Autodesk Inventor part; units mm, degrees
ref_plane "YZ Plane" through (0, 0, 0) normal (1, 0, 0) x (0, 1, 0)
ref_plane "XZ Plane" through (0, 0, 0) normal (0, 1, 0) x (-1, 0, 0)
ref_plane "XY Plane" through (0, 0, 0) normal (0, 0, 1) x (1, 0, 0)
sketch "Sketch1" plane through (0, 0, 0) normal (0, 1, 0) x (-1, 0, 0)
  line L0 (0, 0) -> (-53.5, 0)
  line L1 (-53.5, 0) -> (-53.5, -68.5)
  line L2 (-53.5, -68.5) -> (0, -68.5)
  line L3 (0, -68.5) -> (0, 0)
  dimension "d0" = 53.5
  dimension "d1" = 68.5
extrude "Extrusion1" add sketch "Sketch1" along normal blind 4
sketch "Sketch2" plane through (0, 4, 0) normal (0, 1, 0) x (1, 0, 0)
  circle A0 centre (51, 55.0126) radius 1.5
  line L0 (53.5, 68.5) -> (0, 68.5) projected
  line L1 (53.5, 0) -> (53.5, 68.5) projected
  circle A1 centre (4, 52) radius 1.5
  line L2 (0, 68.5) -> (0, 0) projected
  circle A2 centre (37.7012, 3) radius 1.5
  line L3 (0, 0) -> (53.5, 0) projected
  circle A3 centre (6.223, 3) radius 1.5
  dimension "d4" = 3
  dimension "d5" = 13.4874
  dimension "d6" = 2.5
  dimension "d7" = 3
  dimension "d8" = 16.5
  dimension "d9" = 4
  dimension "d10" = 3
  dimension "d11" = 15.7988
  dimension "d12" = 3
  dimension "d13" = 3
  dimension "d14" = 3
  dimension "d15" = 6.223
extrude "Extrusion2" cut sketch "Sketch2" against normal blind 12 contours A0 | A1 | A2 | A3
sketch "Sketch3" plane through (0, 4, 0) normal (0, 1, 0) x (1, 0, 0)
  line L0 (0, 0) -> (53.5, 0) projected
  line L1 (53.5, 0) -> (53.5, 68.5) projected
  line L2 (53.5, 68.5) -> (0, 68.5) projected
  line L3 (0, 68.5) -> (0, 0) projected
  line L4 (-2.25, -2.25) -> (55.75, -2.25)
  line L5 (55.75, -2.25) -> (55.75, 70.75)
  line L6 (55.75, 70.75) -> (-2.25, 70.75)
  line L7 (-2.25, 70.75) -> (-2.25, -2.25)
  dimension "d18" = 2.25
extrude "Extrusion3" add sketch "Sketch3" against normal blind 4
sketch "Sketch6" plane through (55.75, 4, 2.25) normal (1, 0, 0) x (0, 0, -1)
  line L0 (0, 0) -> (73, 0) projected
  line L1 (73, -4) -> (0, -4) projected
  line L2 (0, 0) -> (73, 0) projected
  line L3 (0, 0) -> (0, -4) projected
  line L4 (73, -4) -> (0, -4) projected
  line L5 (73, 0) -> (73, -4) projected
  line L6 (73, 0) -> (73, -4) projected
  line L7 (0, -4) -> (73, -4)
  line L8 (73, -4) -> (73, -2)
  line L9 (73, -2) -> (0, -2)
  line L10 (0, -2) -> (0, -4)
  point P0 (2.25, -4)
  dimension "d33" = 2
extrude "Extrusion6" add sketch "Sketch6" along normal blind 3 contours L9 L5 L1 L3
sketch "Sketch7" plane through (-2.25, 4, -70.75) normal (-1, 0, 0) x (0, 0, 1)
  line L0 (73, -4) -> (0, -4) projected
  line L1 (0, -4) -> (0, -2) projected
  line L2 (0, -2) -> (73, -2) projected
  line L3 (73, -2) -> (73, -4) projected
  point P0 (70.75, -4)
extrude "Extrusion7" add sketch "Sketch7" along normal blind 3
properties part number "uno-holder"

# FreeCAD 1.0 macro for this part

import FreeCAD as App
import Part
import Sketcher

V = App.Vector
Q = App.Units.Quantity


def add_polygon(sketch, points):
    """Adds a closed chain of lines whose ends are joined by coincident constraints."""
    first, n = sketch.GeometryCount, len(points)
    for a, b in zip(points, points[1:] + points[:1]):
        sketch.addGeometry(Part.LineSegment(App.Vector(*a, 0), App.Vector(*b, 0)), False)
    for i in range(n):
        sketch.addConstraint(Sketcher.Constraint("Coincident", first + i, 2, first + (i + 1) % n, 1))

doc = App.newDocument("Part")
params = doc.addObject("Spreadsheet::Sheet", "Params")
for row, (alias, value) in enumerate([
    ("sketch1_width", "53.5 mm"),
    ("sketch1_height", "68.5 mm"),
    ("pad1_length", "4 mm"),
    ("sketch2_diameter", "3 mm"),
    ("pocket1_length", "12 mm"),
    ("sketch3_width", "58 mm"),
    ("sketch3_height", "73 mm"),
    ("pad2_length", "4 mm"),
    ("sketch4_width", "2 mm"),
    ("sketch4_height", "73 mm"),
    ("pad3_length", "3 mm"),
    ("sketch5_width", "2 mm"),
    ("sketch5_height", "73 mm"),
    ("pad4_length", "3 mm"),
], start=1):
    params.set(f"A{row}", alias)
    params.set(f"B{row}", "=" + value)
    params.setAlias(f"B{row}", alias)

body = doc.addObject("PartDesign::Body", "Body")

# Sketch on XZ plane
sketch1 = doc.addObject("Sketcher::SketchObject", "Sketch")
body.addObject(sketch1)
sketch1.AttachmentSupport = (doc.XZ_Plane, [""])
sketch1.MapMode = "FlatFace"
add_polygon(sketch1, [(0, -68), (0, 0), (54, 0), (54, -68)])  # lines 0-3
sketch1.addConstraint(Sketcher.Constraint("Vertical", 0))
sketch1.addConstraint(Sketcher.Constraint("Horizontal", 1))
sketch1.addConstraint(Sketcher.Constraint("Vertical", 2))
sketch1.addConstraint(Sketcher.Constraint("Horizontal", 3))
sketch1.addConstraint(Sketcher.Constraint("Coincident", 0, 2, -1, 1))
sketch1.addConstraint(Sketcher.Constraint("DistanceX", 1, 1, 1, 2, Q("53.5 mm")))
sketch1.addConstraint(Sketcher.Constraint("DistanceY", 0, 1, 0, 2, Q("68.5 mm")))
sketch1.setExpression("Constraints[9]", "Params.sketch1_width")
sketch1.setExpression("Constraints[10]", "Params.sketch1_height")
pad1 = doc.addObject("PartDesign::Pad", "Pad")
body.addObject(pad1)
pad1.Profile = sketch1
pad1.setExpression("Length", "Params.pad1_length")
pad1.Reversed = True

# Sketch on XZ plane
sketch2 = doc.addObject("Sketcher::SketchObject", "Sketch001")
body.addObject(sketch2)
sketch2.AttachmentSupport = (doc.XZ_Plane, [""])
sketch2.MapMode = "FlatFace"
sketch2.AttachmentOffset = App.Placement(V(0, 0, -4), App.Rotation())
sketch2.addGeometry(Part.Circle(V(51, -55, 0), V(0, 0, 1), 1.5), False)
sketch2.addGeometry(Part.Circle(V(4, -52, 0), V(0, 0, 1), 1.5), False)
sketch2.addGeometry(Part.Circle(V(37.7, -3, 0), V(0, 0, 1), 1.5), False)
sketch2.addGeometry(Part.Circle(V(6.2, -3, 0), V(0, 0, 1), 1.5), False)
sketch2.addConstraint(Sketcher.Constraint("Equal", 0, 1))
sketch2.addConstraint(Sketcher.Constraint("Equal", 1, 2))
sketch2.addConstraint(Sketcher.Constraint("Equal", 2, 3))
sketch2.addConstraint(Sketcher.Constraint("Horizontal", 2, 3, 3, 3))
sketch2.addConstraint(Sketcher.Constraint("Diameter", 0, Q("3 mm")))
sketch2.addConstraint(Sketcher.Constraint("DistanceX", -1, 1, 1, 3, Q("4 mm")))
sketch2.addConstraint(Sketcher.Constraint("DistanceY", 2, 3, -1, 1, Q("3 mm")))
sketch2.addConstraint(Sketcher.Constraint("DistanceX", -1, 1, 0, 3, Q("51 mm")))
sketch2.addConstraint(Sketcher.Constraint("DistanceY", 1, 3, -1, 1, Q("52 mm")))
sketch2.addConstraint(Sketcher.Constraint("DistanceX", -1, 1, 3, 3, Q("6.223 mm")))
sketch2.addConstraint(Sketcher.Constraint("DistanceY", 0, 3, -1, 1, Q("55.0126 mm")))
sketch2.addConstraint(Sketcher.Constraint("DistanceX", -1, 1, 2, 3, Q("37.7012 mm")))
sketch2.setExpression("Constraints[4]", "Params.sketch2_diameter")
pocket1 = doc.addObject("PartDesign::Pocket", "Pocket")
body.addObject(pocket1)
pocket1.Profile = sketch2
pocket1.setExpression("Length", "Params.pocket1_length")
pocket1.Reversed = True

# Sketch on XZ plane
sketch3 = doc.addObject("Sketcher::SketchObject", "Sketch002")
body.addObject(sketch3)
sketch3.AttachmentSupport = (doc.XZ_Plane, [""])
sketch3.MapMode = "FlatFace"
sketch3.AttachmentOffset = App.Placement(V(0, 0, -4), App.Rotation())
add_polygon(sketch3, [(-2, -71), (-2, 2), (56, 2), (56, -71)])  # lines 0-3
add_polygon(sketch3, [(54, 0), (0, 0), (0, -68), (54, -68)])  # lines 4-7
sketch3.addConstraint(Sketcher.Constraint("Vertical", 0))
sketch3.addConstraint(Sketcher.Constraint("Horizontal", 1))
sketch3.addConstraint(Sketcher.Constraint("Vertical", 2))
sketch3.addConstraint(Sketcher.Constraint("Horizontal", 3))
sketch3.addConstraint(Sketcher.Constraint("Horizontal", 4))
sketch3.addConstraint(Sketcher.Constraint("Vertical", 5))
sketch3.addConstraint(Sketcher.Constraint("Horizontal", 6))
sketch3.addConstraint(Sketcher.Constraint("Vertical", 7))
sketch3.addConstraint(Sketcher.Constraint("Coincident", 4, 2, -1, 1))
sketch3.addConstraint(Sketcher.Constraint("DistanceX", 1, 1, 1, 2, Q("58 mm")))
sketch3.addConstraint(Sketcher.Constraint("DistanceY", 0, 1, 0, 2, Q("73 mm")))
sketch3.addConstraint(Sketcher.Constraint("DistanceX", 0, 2, -1, 1, Q("2.25 mm")))
sketch3.addConstraint(Sketcher.Constraint("DistanceY", -1, 1, 0, 2, Q("2.25 mm")))
sketch3.addConstraint(Sketcher.Constraint("DistanceY", 3, 2, 5, 2, Q("2.25 mm")))
sketch3.addConstraint(Sketcher.Constraint("DistanceX", 6, 2, 2, 2, Q("2.25 mm")))
sketch3.setExpression("Constraints[17]", "Params.sketch3_width")
sketch3.setExpression("Constraints[18]", "Params.sketch3_height")
pad2 = doc.addObject("PartDesign::Pad", "Pad001")
body.addObject(pad2)
pad2.Profile = sketch3
pad2.setExpression("Length", "Params.pad2_length")

# Sketch on YZ plane
sketch4 = doc.addObject("Sketcher::SketchObject", "Sketch003")
body.addObject(sketch4)
sketch4.AttachmentSupport = (doc.YZ_Plane, [""])
sketch4.MapMode = "FlatFace"
sketch4.AttachmentOffset = App.Placement(V(0, 0, 55.75), App.Rotation())
add_polygon(sketch4, [(2, -70.8), (2, 2.2), (0, 2.2), (0, -70.8)])  # lines 0-3
sketch4.addConstraint(Sketcher.Constraint("Vertical", 0))
sketch4.addConstraint(Sketcher.Constraint("Horizontal", 1))
sketch4.addConstraint(Sketcher.Constraint("Vertical", 2))
sketch4.addConstraint(Sketcher.Constraint("Horizontal", 3))
sketch4.addConstraint(Sketcher.Constraint("PointOnObject", 1, 2, -2))
sketch4.addConstraint(Sketcher.Constraint("DistanceX", 1, 2, 1, 1, Q("2 mm")))
sketch4.addConstraint(Sketcher.Constraint("DistanceY", 0, 1, 0, 2, Q("73 mm")))
sketch4.addConstraint(Sketcher.Constraint("DistanceY", -1, 1, 0, 2, Q("2.25 mm")))
sketch4.setExpression("Constraints[9]", "Params.sketch4_width")
sketch4.setExpression("Constraints[10]", "Params.sketch4_height")
pad3 = doc.addObject("PartDesign::Pad", "Pad002")
body.addObject(pad3)
pad3.Profile = sketch4
pad3.setExpression("Length", "Params.pad3_length")

# Sketch on YZ plane
sketch5 = doc.addObject("Sketcher::SketchObject", "Sketch004")
body.addObject(sketch5)
sketch5.AttachmentSupport = (doc.YZ_Plane, [""])
sketch5.MapMode = "FlatFace"
sketch5.AttachmentOffset = App.Placement(V(0, 0, -2.25), App.Rotation())
add_polygon(sketch5, [(0, -70.8), (0, 2.2), (2, 2.2), (2, -70.8)])  # lines 0-3
sketch5.addConstraint(Sketcher.Constraint("Vertical", 0))
sketch5.addConstraint(Sketcher.Constraint("Horizontal", 1))
sketch5.addConstraint(Sketcher.Constraint("Vertical", 2))
sketch5.addConstraint(Sketcher.Constraint("Horizontal", 3))
sketch5.addConstraint(Sketcher.Constraint("PointOnObject", 0, 2, -2))
sketch5.addConstraint(Sketcher.Constraint("DistanceX", 1, 1, 1, 2, Q("2 mm")))
sketch5.addConstraint(Sketcher.Constraint("DistanceY", 0, 1, 0, 2, Q("73 mm")))
sketch5.addConstraint(Sketcher.Constraint("DistanceY", -1, 1, 0, 2, Q("2.25 mm")))
sketch5.setExpression("Constraints[9]", "Params.sketch5_width")
sketch5.setExpression("Constraints[10]", "Params.sketch5_height")
pad4 = doc.addObject("PartDesign::Pad", "Pad003")
body.addObject(pad4)
pad4.Profile = sketch5
pad4.setExpression("Length", "Params.pad4_length")
pad4.Reversed = True

doc.recompute()
